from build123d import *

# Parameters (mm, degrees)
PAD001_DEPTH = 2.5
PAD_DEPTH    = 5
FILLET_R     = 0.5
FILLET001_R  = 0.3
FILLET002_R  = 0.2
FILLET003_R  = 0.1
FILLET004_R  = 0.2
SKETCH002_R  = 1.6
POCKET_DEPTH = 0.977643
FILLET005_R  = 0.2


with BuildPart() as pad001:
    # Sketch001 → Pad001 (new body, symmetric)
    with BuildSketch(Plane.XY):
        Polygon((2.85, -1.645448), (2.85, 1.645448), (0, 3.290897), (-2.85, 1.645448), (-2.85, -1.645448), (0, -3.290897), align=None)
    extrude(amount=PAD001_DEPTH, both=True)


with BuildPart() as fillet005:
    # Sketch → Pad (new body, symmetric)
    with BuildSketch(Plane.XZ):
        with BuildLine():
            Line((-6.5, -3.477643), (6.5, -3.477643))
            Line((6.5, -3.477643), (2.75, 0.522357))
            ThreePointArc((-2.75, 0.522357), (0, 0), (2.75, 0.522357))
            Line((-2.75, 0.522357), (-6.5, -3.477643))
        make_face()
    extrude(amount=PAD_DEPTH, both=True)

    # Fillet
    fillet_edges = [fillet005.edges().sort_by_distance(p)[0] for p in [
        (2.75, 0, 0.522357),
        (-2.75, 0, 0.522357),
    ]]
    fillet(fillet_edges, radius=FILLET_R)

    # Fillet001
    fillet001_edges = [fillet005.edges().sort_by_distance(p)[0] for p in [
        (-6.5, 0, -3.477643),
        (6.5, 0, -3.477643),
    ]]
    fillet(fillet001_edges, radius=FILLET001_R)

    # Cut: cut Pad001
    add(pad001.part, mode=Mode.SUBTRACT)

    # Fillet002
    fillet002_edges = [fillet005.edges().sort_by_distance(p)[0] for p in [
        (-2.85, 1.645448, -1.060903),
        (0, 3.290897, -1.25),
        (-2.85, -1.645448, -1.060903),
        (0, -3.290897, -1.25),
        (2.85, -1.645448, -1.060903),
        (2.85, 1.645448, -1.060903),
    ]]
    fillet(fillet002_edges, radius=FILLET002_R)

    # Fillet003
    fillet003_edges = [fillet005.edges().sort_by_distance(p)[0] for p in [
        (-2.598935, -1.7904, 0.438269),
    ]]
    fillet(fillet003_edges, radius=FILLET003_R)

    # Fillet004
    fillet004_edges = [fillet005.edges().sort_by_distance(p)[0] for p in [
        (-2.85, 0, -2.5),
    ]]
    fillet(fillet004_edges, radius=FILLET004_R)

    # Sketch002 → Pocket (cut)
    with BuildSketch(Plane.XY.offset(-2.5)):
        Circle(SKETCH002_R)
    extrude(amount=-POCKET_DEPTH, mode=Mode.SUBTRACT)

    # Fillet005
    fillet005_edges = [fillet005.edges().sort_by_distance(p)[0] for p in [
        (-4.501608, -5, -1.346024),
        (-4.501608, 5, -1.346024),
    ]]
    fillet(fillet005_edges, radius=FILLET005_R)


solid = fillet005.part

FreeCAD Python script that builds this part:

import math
import FreeCAD as App
import Part
import Sketcher

V = App.Vector
Q = App.Units.Quantity


def edges_at(feature, points):
    """Names of the edges that pass closest to the given points."""
    edges = feature.Shape.Edges
    near = lambda p: min(range(len(edges)), key=lambda i: edges[i].distToShape(Part.Vertex(*p))[0])
    return sorted({f"Edge{near(p) + 1}" for p in points})


def add_polygon(sketch, points):
    """Adds a closed chain of lines whose ends are joined by coincident constraints."""
    first, n = sketch.GeometryCount, len(points)
    for a, b in zip(points, points[1:] + points[:1]):
        sketch.addGeometry(Part.LineSegment(App.Vector(*a, 0), App.Vector(*b, 0)), False)
    for i in range(n):
        sketch.addConstraint(Sketcher.Constraint("Coincident", first + i, 2, first + (i + 1) % n, 1))

doc = App.newDocument("Part")
body = doc.addObject("PartDesign::Body", "Body")

# Sketch on XY plane
sketch1 = doc.addObject("Sketcher::SketchObject", "Sketch")
body.addObject(sketch1)
sketch1.AttachmentSupport = (doc.XY_Plane, [""])
sketch1.MapMode = "FlatFace"
add_polygon(sketch1, [(2.9, -1.6), (2.9, 1.6), (0, 3.3), (-2.9, 1.6), (-2.9, -1.6), (0, -3.3)])  # lines 0-5
sketch1.addConstraint([
    Sketcher.Constraint("Vertical", 0),
    Sketcher.Constraint("Vertical", 3),
    Sketcher.Constraint("Symmetric", 0, 2, 3, 2, -1, 1),
    Sketcher.Constraint("Symmetric", 1, 2, 4, 2, -1, 1),
    Sketcher.Constraint("PointOnObject", 1, 2, -2),
    Sketcher.Constraint("Parallel", 2, 5),
    Sketcher.Constraint("Horizontal", 0, 2, 2, 2),
    Sketcher.Constraint("Angle", 1, Q("149.999989 deg")),
    Sketcher.Constraint("DistanceX", 2, 2, 0, 2, Q("5.7 mm")),
    Sketcher.Constraint("DistanceY", 0, 1, 0, 2, Q("3.290896 mm")),
])
pad1 = doc.addObject("PartDesign::Pad", "Pad")
body.addObject(pad1)
pad1.Profile = sketch1
pad1.Length = 5
pad1.Midplane = True
body2 = doc.addObject("PartDesign::Body", "Body001")

# Sketch on XZ plane
sketch2 = doc.addObject("Sketcher::SketchObject", "Sketch001")
body2.addObject(sketch2)
sketch2.AttachmentSupport = (doc.getObject("XZ_Plane001"), [""])
sketch2.MapMode = "FlatFace"
sketch2.addGeometry([
    Part.LineSegment(V(-6, -3, 0), V(6, -3, 0)),
    Part.LineSegment(V(6, -3, 0), V(3, 1, 0)),
    Part.ArcOfCircle(Part.Circle(V(0, 8, 0), V(0, 0, 1), 8), math.radians(-112), math.radians(-68)),
    Part.LineSegment(V(-3, 1, 0), V(-6, -3, 0)),
], False)
sketch2.addConstraint([
    Sketcher.Constraint("Coincident", 0, 2, 1, 1),
    Sketcher.Constraint("Coincident", 1, 2, 2, 2),
    Sketcher.Constraint("Coincident", 2, 1, 3, 1),
    Sketcher.Constraint("Coincident", 3, 2, 0, 1),
    Sketcher.Constraint("Horizontal", 0),
    Sketcher.Constraint("Symmetric", 1, 2, 2, 1, -2),
    Sketcher.Constraint("Equal", 1, 3),
    Sketcher.Constraint("Radius", 2, Q("7.500002 mm")),
    Sketcher.Constraint("DistanceX", 0, 1, 0, 2, Q("13 mm")),
    Sketcher.Constraint("DistanceY", 0, 2, 1, 2, Q("4 mm")),
    Sketcher.Constraint("DistanceY", -1, 1, 2, 3, Q("7.500002 mm")),
    Sketcher.Constraint("DistanceX", 2, 1, 1, 2, Q("5.5 mm")),
])
pad2 = doc.addObject("PartDesign::Pad", "Pad001")
body2.addObject(pad2)
pad2.Profile = sketch2
pad2.Length = 10
pad2.Midplane = True
doc.recompute()

fillet = doc.addObject("PartDesign::Fillet", "Fillet")
body2.addObject(fillet)
fillet.Base = (pad2, edges_at(pad2, [(2.75, 0, 0.522), (-2.75, 0, 0.522)]))
fillet.Radius = 0.5
doc.recompute()

fillet2 = doc.addObject("PartDesign::Fillet", "Fillet001")
body2.addObject(fillet2)
fillet2.Base = (fillet, edges_at(fillet, [(-6.5, 0, -3.478), (6.5, 0, -3.478)]))
fillet2.Radius = 0.3
doc.recompute()

boolean = doc.addObject("PartDesign::Boolean", "Boolean")
body2.addObject(boolean)
boolean.Type = "Cut"
boolean.addObjects([body])
doc.recompute()

fillet3 = doc.addObject("PartDesign::Fillet", "Fillet002")
body2.addObject(fillet3)
fillet3.Base = (boolean, edges_at(boolean, [
    (-2.85, 1.645, -1.061),
    (0, 3.291, -1.25),
    (-2.85, -1.645, -1.061),
    (0, -3.291, -1.25),
    (2.85, -1.645, -1.061),
    (2.85, 1.645, -1.061),
]))
fillet3.Radius = 0.2
doc.recompute()

fillet4 = doc.addObject("PartDesign::Fillet", "Fillet003")
body2.addObject(fillet4)
fillet4.Base = (fillet3, edges_at(fillet3, [(-2.599, -1.79, 0.438)]))
fillet4.Radius = 0.1
doc.recompute()

fillet5 = doc.addObject("PartDesign::Fillet", "Fillet004")
body2.addObject(fillet5)
fillet5.Base = (fillet4, edges_at(fillet4, [(-2.85, 0, -2.5)]))
fillet5.Radius = 0.2

# Sketch on XY plane
sketch3 = doc.addObject("Sketcher::SketchObject", "Sketch002")
body2.addObject(sketch3)
sketch3.AttachmentSupport = (doc.getObject("XY_Plane001"), [""])
sketch3.MapMode = "FlatFace"
sketch3.AttachmentOffset = App.Placement(V(0, 0, -2.5), App.Rotation())
sketch3.addGeometry(Part.Circle(V(0, 0, 0), V(0, 0, 1), 1.6), False)
sketch3.addConstraint([
    Sketcher.Constraint("Coincident", 0, 3, -1, 1),
    Sketcher.Constraint("Diameter", 0, Q("3.2 mm")),
])
pocket1 = doc.addObject("PartDesign::Pocket", "Pocket")
body2.addObject(pocket1)
pocket1.Profile = sketch3
pocket1.Length = 0.977643
doc.recompute()

fillet6 = doc.addObject("PartDesign::Fillet", "Fillet005")
body2.addObject(fillet6)
fillet6.Base = (pocket1, edges_at(pocket1, [(-4.502, -5, -1.346), (-4.502, 5, -1.346)]))
fillet6.Radius = 0.2

doc.recompute()
